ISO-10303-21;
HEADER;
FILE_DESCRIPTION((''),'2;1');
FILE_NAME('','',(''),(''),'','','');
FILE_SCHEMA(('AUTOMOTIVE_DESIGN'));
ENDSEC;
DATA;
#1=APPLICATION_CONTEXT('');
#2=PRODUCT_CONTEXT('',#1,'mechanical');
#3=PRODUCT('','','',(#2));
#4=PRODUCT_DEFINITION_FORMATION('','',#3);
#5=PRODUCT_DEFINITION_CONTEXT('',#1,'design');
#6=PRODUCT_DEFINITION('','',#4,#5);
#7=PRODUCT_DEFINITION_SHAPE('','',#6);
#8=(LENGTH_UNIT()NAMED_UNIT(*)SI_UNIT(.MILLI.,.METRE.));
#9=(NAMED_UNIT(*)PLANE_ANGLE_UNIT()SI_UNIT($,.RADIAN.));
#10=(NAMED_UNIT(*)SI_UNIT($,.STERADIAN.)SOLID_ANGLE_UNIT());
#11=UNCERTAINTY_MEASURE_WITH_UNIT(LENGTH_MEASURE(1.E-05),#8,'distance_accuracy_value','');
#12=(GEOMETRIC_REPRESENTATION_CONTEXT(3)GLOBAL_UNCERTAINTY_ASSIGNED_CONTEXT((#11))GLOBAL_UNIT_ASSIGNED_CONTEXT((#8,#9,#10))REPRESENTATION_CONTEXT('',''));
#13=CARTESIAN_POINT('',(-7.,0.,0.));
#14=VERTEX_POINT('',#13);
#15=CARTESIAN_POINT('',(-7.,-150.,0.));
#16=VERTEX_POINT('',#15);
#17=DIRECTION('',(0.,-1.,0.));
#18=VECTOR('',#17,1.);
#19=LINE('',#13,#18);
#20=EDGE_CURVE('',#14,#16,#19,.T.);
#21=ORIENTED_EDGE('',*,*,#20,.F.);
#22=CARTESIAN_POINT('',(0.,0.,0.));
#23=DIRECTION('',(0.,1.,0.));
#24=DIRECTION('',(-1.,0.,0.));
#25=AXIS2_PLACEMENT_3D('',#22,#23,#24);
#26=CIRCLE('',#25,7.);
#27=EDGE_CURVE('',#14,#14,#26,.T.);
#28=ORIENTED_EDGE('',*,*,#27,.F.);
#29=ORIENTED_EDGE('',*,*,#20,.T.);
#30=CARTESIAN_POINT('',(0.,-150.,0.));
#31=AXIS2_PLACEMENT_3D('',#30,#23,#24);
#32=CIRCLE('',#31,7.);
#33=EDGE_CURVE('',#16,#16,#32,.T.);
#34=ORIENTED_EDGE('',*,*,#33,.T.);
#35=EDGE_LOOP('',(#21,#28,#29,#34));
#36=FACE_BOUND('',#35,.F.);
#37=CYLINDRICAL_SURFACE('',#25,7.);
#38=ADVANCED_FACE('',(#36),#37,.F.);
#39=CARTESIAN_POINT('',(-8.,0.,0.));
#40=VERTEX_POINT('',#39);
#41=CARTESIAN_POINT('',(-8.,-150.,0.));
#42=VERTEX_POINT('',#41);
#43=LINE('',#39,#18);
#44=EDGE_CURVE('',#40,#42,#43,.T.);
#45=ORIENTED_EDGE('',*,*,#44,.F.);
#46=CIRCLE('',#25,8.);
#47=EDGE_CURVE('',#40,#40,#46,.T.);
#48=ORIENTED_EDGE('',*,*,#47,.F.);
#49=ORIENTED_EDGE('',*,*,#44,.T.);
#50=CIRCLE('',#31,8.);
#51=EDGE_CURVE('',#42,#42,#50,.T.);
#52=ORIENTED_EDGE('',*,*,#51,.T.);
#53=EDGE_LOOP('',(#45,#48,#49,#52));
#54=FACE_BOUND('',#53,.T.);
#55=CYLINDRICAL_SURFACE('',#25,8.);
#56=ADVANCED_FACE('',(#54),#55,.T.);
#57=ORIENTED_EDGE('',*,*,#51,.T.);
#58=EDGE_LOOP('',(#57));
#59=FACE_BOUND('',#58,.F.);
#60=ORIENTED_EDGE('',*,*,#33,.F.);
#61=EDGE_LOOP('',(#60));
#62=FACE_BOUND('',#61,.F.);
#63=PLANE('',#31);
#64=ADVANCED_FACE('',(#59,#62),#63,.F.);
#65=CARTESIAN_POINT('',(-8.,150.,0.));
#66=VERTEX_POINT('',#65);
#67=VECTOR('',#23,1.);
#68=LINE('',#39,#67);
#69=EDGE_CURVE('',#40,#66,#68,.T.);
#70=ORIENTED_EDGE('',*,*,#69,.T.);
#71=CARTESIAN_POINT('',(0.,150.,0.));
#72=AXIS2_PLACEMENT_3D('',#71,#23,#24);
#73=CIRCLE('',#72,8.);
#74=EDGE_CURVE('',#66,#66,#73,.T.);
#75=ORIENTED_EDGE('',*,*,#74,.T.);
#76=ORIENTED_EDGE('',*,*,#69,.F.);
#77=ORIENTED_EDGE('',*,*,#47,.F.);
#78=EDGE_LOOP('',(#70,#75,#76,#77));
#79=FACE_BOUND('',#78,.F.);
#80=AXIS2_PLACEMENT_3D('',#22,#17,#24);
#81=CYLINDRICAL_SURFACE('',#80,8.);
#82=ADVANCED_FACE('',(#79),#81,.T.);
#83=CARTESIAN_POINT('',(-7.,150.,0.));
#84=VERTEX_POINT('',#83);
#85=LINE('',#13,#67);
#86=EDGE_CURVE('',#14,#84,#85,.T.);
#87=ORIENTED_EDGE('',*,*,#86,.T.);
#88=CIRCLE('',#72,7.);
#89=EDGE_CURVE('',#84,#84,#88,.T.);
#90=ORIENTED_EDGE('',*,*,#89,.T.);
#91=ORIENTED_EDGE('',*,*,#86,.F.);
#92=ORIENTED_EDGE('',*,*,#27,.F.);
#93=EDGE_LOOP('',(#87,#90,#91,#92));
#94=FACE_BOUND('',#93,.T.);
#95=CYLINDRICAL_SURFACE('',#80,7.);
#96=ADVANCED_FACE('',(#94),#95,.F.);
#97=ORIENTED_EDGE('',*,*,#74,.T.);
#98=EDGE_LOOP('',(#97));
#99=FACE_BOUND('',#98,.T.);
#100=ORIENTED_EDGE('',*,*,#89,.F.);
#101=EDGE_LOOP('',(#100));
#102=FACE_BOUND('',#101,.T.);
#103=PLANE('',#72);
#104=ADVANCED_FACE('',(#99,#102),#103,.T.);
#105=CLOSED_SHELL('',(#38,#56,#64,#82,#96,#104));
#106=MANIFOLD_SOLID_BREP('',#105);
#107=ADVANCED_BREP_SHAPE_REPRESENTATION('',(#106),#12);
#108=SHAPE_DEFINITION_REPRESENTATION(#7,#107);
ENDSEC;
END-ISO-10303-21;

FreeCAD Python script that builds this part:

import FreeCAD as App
import Part
import Sketcher

doc = App.newDocument("Part")
params = doc.addObject("Spreadsheet::Sheet", "Params")
for row, (alias, value) in enumerate([
    ("sketch1_diameter", "16 mm"),
    ("sketch1_diameter2", "14 mm"),
    ("pad1_length", "300 mm"),
], start=1):
    params.set(f"A{row}", alias)
    params.set(f"B{row}", "=" + value)
    params.setAlias(f"B{row}", alias)

body = doc.addObject("PartDesign::Body", "Body")

# Sketch on XZ plane
sketch1 = body.newObject("Sketcher::SketchObject", "Sketch")
sketch1.AttachmentSupport = (doc.getObject("XZ_Plane"), [""])
sketch1.MapMode = "FlatFace"
sketch1.addGeometry(Part.Circle(App.Vector(0, 0, 0), App.Vector(0, 0, 1), 8), False)
sketch1.addGeometry(Part.Circle(App.Vector(0, 0, 0), App.Vector(0, 0, 1), 7), False)
sketch1.addConstraint(Sketcher.Constraint("Coincident", 0, 3, -1, 1))
sketch1.addConstraint(Sketcher.Constraint("Coincident", 1, 3, -1, 1))
sketch1.addConstraint(Sketcher.Constraint("Diameter", 0, 16.0))
sketch1.addConstraint(Sketcher.Constraint("Diameter", 1, 14.0))
sketch1.setExpression("Constraints[2]", "Params.sketch1_diameter")
sketch1.setExpression("Constraints[3]", "Params.sketch1_diameter2")
pad1 = body.newObject("PartDesign::Pad", "Pad")
pad1.Profile = sketch1
pad1.setExpression("Length", "Params.pad1_length")
pad1.Midplane = True

doc.recompute()
